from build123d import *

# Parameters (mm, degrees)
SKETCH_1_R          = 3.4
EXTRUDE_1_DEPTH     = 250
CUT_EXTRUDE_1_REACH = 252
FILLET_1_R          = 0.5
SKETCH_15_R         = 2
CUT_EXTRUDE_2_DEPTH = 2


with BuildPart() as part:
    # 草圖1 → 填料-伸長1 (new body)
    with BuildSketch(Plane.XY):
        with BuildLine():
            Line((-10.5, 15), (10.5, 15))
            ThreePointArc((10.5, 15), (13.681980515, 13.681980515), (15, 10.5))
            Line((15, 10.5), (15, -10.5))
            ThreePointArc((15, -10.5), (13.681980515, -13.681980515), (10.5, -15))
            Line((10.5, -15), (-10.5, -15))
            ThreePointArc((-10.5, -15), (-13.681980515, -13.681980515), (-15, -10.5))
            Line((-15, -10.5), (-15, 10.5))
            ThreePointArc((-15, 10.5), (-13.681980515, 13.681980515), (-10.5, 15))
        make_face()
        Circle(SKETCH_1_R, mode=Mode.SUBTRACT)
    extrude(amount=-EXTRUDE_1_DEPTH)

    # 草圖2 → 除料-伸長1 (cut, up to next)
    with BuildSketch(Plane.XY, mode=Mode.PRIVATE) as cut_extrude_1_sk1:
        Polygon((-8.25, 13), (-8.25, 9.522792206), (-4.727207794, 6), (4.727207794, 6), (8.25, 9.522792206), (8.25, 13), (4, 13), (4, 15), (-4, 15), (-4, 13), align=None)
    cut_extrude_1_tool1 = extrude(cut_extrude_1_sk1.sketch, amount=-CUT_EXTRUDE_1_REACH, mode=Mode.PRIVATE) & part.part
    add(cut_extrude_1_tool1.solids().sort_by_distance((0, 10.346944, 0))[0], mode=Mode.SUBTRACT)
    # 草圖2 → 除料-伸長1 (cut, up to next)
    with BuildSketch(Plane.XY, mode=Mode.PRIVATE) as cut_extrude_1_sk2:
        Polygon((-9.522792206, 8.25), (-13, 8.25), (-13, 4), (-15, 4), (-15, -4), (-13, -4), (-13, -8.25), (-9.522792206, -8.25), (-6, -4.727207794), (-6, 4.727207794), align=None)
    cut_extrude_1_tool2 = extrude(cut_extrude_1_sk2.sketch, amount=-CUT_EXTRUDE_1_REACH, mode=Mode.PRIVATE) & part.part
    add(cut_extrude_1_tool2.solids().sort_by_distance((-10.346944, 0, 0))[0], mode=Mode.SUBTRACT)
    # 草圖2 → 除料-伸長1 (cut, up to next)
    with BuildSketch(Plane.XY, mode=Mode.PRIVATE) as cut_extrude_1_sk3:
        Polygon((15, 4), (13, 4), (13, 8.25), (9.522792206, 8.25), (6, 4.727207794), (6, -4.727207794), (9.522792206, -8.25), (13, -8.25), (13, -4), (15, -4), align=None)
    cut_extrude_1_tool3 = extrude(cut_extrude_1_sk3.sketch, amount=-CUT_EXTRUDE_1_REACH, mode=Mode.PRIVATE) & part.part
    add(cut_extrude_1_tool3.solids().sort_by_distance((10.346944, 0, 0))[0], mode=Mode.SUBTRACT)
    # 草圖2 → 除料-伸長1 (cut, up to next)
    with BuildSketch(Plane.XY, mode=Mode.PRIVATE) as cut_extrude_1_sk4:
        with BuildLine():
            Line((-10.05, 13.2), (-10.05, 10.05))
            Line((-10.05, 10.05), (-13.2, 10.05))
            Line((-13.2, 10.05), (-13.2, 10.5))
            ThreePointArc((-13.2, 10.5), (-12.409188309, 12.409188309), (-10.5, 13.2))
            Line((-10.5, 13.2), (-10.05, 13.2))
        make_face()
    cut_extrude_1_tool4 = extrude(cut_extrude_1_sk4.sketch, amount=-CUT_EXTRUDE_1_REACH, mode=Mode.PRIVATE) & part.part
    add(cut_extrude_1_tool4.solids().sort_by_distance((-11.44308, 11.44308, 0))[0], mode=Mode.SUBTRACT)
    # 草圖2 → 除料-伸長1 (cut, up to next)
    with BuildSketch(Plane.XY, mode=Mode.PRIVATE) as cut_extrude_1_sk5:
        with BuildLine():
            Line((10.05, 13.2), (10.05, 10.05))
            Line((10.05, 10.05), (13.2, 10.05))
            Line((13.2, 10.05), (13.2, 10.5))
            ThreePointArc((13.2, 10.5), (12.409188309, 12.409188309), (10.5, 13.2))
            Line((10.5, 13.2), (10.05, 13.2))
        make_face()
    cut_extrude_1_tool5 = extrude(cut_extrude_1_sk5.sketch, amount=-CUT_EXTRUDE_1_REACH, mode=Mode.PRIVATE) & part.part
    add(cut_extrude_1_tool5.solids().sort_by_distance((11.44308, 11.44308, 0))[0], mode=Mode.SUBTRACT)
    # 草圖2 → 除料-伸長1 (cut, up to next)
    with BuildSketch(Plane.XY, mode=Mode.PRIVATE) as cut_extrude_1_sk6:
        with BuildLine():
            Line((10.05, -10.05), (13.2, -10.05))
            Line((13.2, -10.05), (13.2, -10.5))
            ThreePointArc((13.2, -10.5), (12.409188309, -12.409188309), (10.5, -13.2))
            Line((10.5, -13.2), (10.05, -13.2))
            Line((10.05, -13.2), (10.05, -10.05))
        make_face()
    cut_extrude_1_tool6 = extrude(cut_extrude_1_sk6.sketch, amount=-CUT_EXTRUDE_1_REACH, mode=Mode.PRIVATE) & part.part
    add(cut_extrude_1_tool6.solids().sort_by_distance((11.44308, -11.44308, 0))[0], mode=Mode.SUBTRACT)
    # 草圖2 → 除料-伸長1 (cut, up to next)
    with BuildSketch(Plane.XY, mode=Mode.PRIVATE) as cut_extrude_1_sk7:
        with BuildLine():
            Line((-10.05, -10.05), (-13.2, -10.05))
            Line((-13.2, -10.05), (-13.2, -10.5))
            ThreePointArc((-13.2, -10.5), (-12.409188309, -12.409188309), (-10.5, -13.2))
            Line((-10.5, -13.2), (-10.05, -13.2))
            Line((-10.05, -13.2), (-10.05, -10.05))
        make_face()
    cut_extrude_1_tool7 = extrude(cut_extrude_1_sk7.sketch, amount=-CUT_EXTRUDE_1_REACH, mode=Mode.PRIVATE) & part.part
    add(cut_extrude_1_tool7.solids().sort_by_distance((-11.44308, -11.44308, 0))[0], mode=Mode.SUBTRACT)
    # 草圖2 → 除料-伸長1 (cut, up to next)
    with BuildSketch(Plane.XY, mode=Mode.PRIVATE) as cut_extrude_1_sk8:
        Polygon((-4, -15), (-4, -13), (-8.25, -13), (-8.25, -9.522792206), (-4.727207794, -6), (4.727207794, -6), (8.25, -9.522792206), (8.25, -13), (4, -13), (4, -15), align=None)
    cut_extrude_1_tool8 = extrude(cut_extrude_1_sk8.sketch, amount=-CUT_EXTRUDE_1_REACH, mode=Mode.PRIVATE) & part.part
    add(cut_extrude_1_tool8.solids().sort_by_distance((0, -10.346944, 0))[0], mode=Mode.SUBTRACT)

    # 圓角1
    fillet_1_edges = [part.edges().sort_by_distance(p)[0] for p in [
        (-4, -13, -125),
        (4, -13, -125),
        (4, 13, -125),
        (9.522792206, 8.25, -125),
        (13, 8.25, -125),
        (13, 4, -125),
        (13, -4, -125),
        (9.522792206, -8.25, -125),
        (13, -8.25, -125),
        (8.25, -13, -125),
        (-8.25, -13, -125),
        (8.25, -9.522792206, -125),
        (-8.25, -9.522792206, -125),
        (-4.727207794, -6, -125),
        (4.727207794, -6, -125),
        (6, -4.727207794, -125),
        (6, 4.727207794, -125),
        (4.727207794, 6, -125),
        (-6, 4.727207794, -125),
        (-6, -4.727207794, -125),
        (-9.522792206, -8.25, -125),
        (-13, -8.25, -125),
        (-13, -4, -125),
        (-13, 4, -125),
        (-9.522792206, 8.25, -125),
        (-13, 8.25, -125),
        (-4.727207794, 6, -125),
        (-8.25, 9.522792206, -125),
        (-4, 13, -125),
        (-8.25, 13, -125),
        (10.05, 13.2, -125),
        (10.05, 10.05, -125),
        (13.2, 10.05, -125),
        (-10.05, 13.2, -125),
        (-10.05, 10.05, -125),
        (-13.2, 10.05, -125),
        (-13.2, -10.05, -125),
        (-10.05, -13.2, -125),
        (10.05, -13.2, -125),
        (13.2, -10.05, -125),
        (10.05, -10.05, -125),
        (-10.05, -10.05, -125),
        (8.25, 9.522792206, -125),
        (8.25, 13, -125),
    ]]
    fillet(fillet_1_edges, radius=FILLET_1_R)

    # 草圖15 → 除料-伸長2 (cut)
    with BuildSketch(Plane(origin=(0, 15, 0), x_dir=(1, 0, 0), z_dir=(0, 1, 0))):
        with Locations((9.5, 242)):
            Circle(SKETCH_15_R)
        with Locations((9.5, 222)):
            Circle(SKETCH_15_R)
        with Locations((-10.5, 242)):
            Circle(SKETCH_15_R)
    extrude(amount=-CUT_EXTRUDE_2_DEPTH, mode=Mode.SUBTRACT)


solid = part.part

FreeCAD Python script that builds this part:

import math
import FreeCAD as App
import Part
import Sketcher
from FreeCAD import Vector


def edges_at(feature, points):
    """Names of the edges that pass closest to the given points."""
    edges = feature.Shape.Edges
    near = lambda p: min(range(len(edges)), key=lambda i: edges[i].distToShape(Part.Vertex(*p))[0])
    return sorted({f"Edge{near(p) + 1}" for p in points})

doc = App.newDocument("Part")
body = doc.addObject("PartDesign::Body", "Body")

sketch1 = body.newObject("Sketcher::SketchObject", "Sketch")
sketch1.AttachmentSupport = (doc.getObject("XY_Plane"), [""])
sketch1.MapMode = "FlatFace"
sketch1.addGeometry(Part.LineSegment(Vector(10.5, 15, 0), Vector(-10.5, 15, 0)), False)
sketch1.addGeometry(Part.ArcOfCircle(Part.Circle(Vector(-10.5, 10.5, 0), Vector(0, 0, 1), 4.5), math.radians(90), math.radians(180)), False)
sketch1.addGeometry(Part.LineSegment(Vector(-15, 10.5, 0), Vector(-15, -10.5, 0)), False)
sketch1.addGeometry(Part.ArcOfCircle(Part.Circle(Vector(-10.5, -10.5, 0), Vector(0, 0, 1), 4.5), math.radians(-180), math.radians(-90)), False)
sketch1.addGeometry(Part.LineSegment(Vector(-10.5, -15, 0), Vector(10.5, -15, 0)), False)
sketch1.addGeometry(Part.ArcOfCircle(Part.Circle(Vector(10.5, -10.5, 0), Vector(0, 0, 1), 4.5), math.radians(-90), math.radians(0)), False)
sketch1.addGeometry(Part.LineSegment(Vector(15, -10.5, 0), Vector(15, 10.5, 0)), False)
sketch1.addGeometry(Part.ArcOfCircle(Part.Circle(Vector(10.5, 10.5, 0), Vector(0, 0, 1), 4.5), math.radians(0), math.radians(90)), False)
sketch1.addGeometry(Part.Circle(Vector(0, 0, 0), Vector(0, 0, 1), 3.4), False)
sketch1.addConstraint(Sketcher.Constraint("Tangent", 0, 2, 1, 1))
sketch1.addConstraint(Sketcher.Constraint("Tangent", 1, 2, 2, 1))
sketch1.addConstraint(Sketcher.Constraint("Tangent", 2, 2, 3, 1))
sketch1.addConstraint(Sketcher.Constraint("Tangent", 3, 2, 4, 1))
sketch1.addConstraint(Sketcher.Constraint("Tangent", 4, 2, 5, 1))
sketch1.addConstraint(Sketcher.Constraint("Tangent", 5, 2, 6, 1))
sketch1.addConstraint(Sketcher.Constraint("Tangent", 6, 2, 7, 1))
sketch1.addConstraint(Sketcher.Constraint("Tangent", 7, 2, 0, 1))
sketch1.addConstraint(Sketcher.Constraint("Horizontal", 0))
sketch1.addConstraint(Sketcher.Constraint("Vertical", 2))
sketch1.addConstraint(Sketcher.Constraint("Horizontal", 4))
sketch1.addConstraint(Sketcher.Constraint("Vertical", 6))
sketch1.addConstraint(Sketcher.Constraint("Coincident", 8, 3, -1, 1))
sketch1.addConstraint(Sketcher.Constraint("Equal", 1, 3))
sketch1.addConstraint(Sketcher.Constraint("Equal", 3, 5))
sketch1.addConstraint(Sketcher.Constraint("Equal", 5, 7))
sketch1.addConstraint(Sketcher.Constraint("Symmetric", 1, 3, 5, 3, -1, 1))
sketch1.addConstraint(Sketcher.Constraint("Equal", 4, 2))
sketch1.addConstraint(Sketcher.Constraint("Diameter", 8, 6.8))
sketch1.addConstraint(Sketcher.Constraint("Radius", 1, 4.5))
sketch1.addConstraint(Sketcher.Constraint("DistanceX", 0, 2, 0, 1, 21.0))
pad1 = body.newObject("PartDesign::Pad", "Pad")
pad1.Profile = sketch1
pad1.Length = 250
pad1.Reversed = True

sketch2 = body.newObject("Sketcher::SketchObject", "Sketch001")
sketch2.AttachmentSupport = (doc.getObject("XY_Plane"), [""])
sketch2.MapMode = "FlatFace"
sketch2.addGeometry(Part.LineSegment(Vector(-8.2, 13, 0), Vector(-8.2, 9.5, 0)), False)
sketch2.addGeometry(Part.LineSegment(Vector(-8.2, 9.5, 0), Vector(-4.7, 6, 0)), False)
sketch2.addGeometry(Part.LineSegment(Vector(-4.7, 6, 0), Vector(4.7, 6, 0)), False)
sketch2.addGeometry(Part.LineSegment(Vector(4.7, 6, 0), Vector(8.2, 9.5, 0)), False)
sketch2.addGeometry(Part.LineSegment(Vector(8.2, 9.5, 0), Vector(8.2, 13, 0)), False)
sketch2.addGeometry(Part.LineSegment(Vector(8.2, 13, 0), Vector(4, 13, 0)), False)
sketch2.addGeometry(Part.LineSegment(Vector(4, 13, 0), Vector(4, 15, 0)), False)
sketch2.addGeometry(Part.LineSegment(Vector(4, 15, 0), Vector(-4, 15, 0)), False)
sketch2.addGeometry(Part.LineSegment(Vector(-4, 15, 0), Vector(-4, 13, 0)), False)
sketch2.addGeometry(Part.LineSegment(Vector(-4, 13, 0), Vector(-8.2, 13, 0)), False)
sketch2.addConstraint(Sketcher.Constraint("Coincident", 0, 2, 1, 1))
sketch2.addConstraint(Sketcher.Constraint("Coincident", 1, 2, 2, 1))
sketch2.addConstraint(Sketcher.Constraint("Coincident", 2, 2, 3, 1))
sketch2.addConstraint(Sketcher.Constraint("Coincident", 3, 2, 4, 1))
sketch2.addConstraint(Sketcher.Constraint("Coincident", 4, 2, 5, 1))
sketch2.addConstraint(Sketcher.Constraint("Coincident", 5, 2, 6, 1))
sketch2.addConstraint(Sketcher.Constraint("Coincident", 6, 2, 7, 1))
sketch2.addConstraint(Sketcher.Constraint("Coincident", 7, 2, 8, 1))
sketch2.addConstraint(Sketcher.Constraint("Coincident", 8, 2, 9, 1))
sketch2.addConstraint(Sketcher.Constraint("Coincident", 9, 2, 0, 1))
sketch2.addConstraint(Sketcher.Constraint("Vertical", 0))
sketch2.addConstraint(Sketcher.Constraint("Horizontal", 2))
sketch2.addConstraint(Sketcher.Constraint("Vertical", 4))
sketch2.addConstraint(Sketcher.Constraint("Horizontal", 5))
sketch2.addConstraint(Sketcher.Constraint("Vertical", 6))
sketch2.addConstraint(Sketcher.Constraint("Horizontal", 7))
sketch2.addConstraint(Sketcher.Constraint("Vertical", 8))
sketch2.addConstraint(Sketcher.Constraint("Horizontal", 9))
sketch2.addConstraint(Sketcher.Constraint("Symmetric", 0, 2, 3, 2, -2))
sketch2.addConstraint(Sketcher.Constraint("Symmetric", 5, 2, 8, 2, -2))
sketch2.addConstraint(Sketcher.Constraint("Perpendicular", 1, 3))
sketch2.addConstraint(Sketcher.Constraint("Equal", 1, 3))
sketch2.addConstraint(Sketcher.Constraint("DistanceX", 7, 2, 7, 1, 8.0))
sketch2.addConstraint(Sketcher.Constraint("DistanceY", 6, 1, 6, 2, 2.0))
sketch2.addConstraint(Sketcher.Constraint("DistanceY", -1, 1, 1, 2, 6.0))
sketch2.addConstraint(Sketcher.Constraint("DistanceY", -1, 1, 4, 2, 13.0))
sketch2.addConstraint(Sketcher.Constraint("DistanceX", 5, 2, 5, 1, 4.25))
sketch2.addConstraint(Sketcher.Constraint("Distance", 1, 4.981981))
pocket1 = body.newObject("PartDesign::Pocket", "Pocket")
pocket1.Profile = sketch2
pocket1.Type = "UpToFirst"

sketch3 = body.newObject("Sketcher::SketchObject", "Sketch002")
sketch3.AttachmentSupport = (doc.getObject("XY_Plane"), [""])
sketch3.MapMode = "FlatFace"
sketch3.addGeometry(Part.LineSegment(Vector(-9.5, 8.2, 0), Vector(-13, 8.2, 0)), False)
sketch3.addGeometry(Part.LineSegment(Vector(-13, 8.2, 0), Vector(-13, 4, 0)), False)
sketch3.addGeometry(Part.LineSegment(Vector(-13, 4, 0), Vector(-15, 4, 0)), False)
sketch3.addGeometry(Part.LineSegment(Vector(-15, 4, 0), Vector(-15, -4, 0)), False)
sketch3.addGeometry(Part.LineSegment(Vector(-15, -4, 0), Vector(-13, -4, 0)), False)
sketch3.addGeometry(Part.LineSegment(Vector(-13, -4, 0), Vector(-13, -8.2, 0)), False)
sketch3.addGeometry(Part.LineSegment(Vector(-13, -8.2, 0), Vector(-9.5, -8.2, 0)), False)
sketch3.addGeometry(Part.LineSegment(Vector(-9.5, -8.2, 0), Vector(-6, -4.7, 0)), False)
sketch3.addGeometry(Part.LineSegment(Vector(-6, -4.7, 0), Vector(-6, 4.7, 0)), False)
sketch3.addGeometry(Part.LineSegment(Vector(-6, 4.7, 0), Vector(-9.5, 8.2, 0)), False)
sketch3.addConstraint(Sketcher.Constraint("Coincident", 0, 2, 1, 1))
sketch3.addConstraint(Sketcher.Constraint("Coincident", 1, 2, 2, 1))
sketch3.addConstraint(Sketcher.Constraint("Coincident", 2, 2, 3, 1))
sketch3.addConstraint(Sketcher.Constraint("Coincident", 3, 2, 4, 1))
sketch3.addConstraint(Sketcher.Constraint("Coincident", 4, 2, 5, 1))
sketch3.addConstraint(Sketcher.Constraint("Coincident", 5, 2, 6, 1))
sketch3.addConstraint(Sketcher.Constraint("Coincident", 6, 2, 7, 1))
sketch3.addConstraint(Sketcher.Constraint("Coincident", 7, 2, 8, 1))
sketch3.addConstraint(Sketcher.Constraint("Coincident", 8, 2, 9, 1))
sketch3.addConstraint(Sketcher.Constraint("Coincident", 9, 2, 0, 1))
sketch3.addConstraint(Sketcher.Constraint("Horizontal", 0))
sketch3.addConstraint(Sketcher.Constraint("Vertical", 1))
sketch3.addConstraint(Sketcher.Constraint("Horizontal", 2))
sketch3.addConstraint(Sketcher.Constraint("Vertical", 3))
sketch3.addConstraint(Sketcher.Constraint("Horizontal", 4))
sketch3.addConstraint(Sketcher.Constraint("Vertical", 5))
sketch3.addConstraint(Sketcher.Constraint("Horizontal", 6))
sketch3.addConstraint(Sketcher.Constraint("Vertical", 8))
sketch3.addConstraint(Sketcher.Constraint("Symmetric", 1, 2, 4, 2, -1))
sketch3.addConstraint(Sketcher.Constraint("Symmetric", 6, 2, 9, 2, -1))
sketch3.addConstraint(Sketcher.Constraint("Perpendicular", 7, 9))
sketch3.addConstraint(Sketcher.Constraint("Equal", 7, 9))
sketch3.addConstraint(Sketcher.Constraint("DistanceX", 2, 2, 2, 1, 2.0))
sketch3.addConstraint(Sketcher.Constraint("DistanceY", 3, 2, 3, 1, 8.0))
sketch3.addConstraint(Sketcher.Constraint("DistanceX", 0, 2, -1, 1, 13.0))
sketch3.addConstraint(Sketcher.Constraint("DistanceX", 7, 2, -1, 1, 6.0))
sketch3.addConstraint(Sketcher.Constraint("DistanceY", 1, 2, 1, 1, 4.25))
sketch3.addConstraint(Sketcher.Constraint("Distance", 7, 4.981981))
pocket2 = body.newObject("PartDesign::Pocket", "Pocket001")
pocket2.Profile = sketch3
pocket2.Type = "UpToFirst"

sketch4 = body.newObject("Sketcher::SketchObject", "Sketch003")
sketch4.AttachmentSupport = (doc.getObject("XY_Plane"), [""])
sketch4.MapMode = "FlatFace"
sketch4.addGeometry(Part.LineSegment(Vector(15, 4, 0), Vector(13, 4, 0)), False)
sketch4.addGeometry(Part.LineSegment(Vector(13, 4, 0), Vector(13, 8.2, 0)), False)
sketch4.addGeometry(Part.LineSegment(Vector(13, 8.2, 0), Vector(9.5, 8.2, 0)), False)
sketch4.addGeometry(Part.LineSegment(Vector(9.5, 8.2, 0), Vector(6, 4.7, 0)), False)
sketch4.addGeometry(Part.LineSegment(Vector(6, 4.7, 0), Vector(6, -4.7, 0)), False)
sketch4.addGeometry(Part.LineSegment(Vector(6, -4.7, 0), Vector(9.5, -8.2, 0)), False)
sketch4.addGeometry(Part.LineSegment(Vector(9.5, -8.2, 0), Vector(13, -8.2, 0)), False)
sketch4.addGeometry(Part.LineSegment(Vector(13, -8.2, 0), Vector(13, -4, 0)), False)
sketch4.addGeometry(Part.LineSegment(Vector(13, -4, 0), Vector(15, -4, 0)), False)
sketch4.addGeometry(Part.LineSegment(Vector(15, -4, 0), Vector(15, 4, 0)), False)
sketch4.addConstraint(Sketcher.Constraint("Coincident", 0, 2, 1, 1))
sketch4.addConstraint(Sketcher.Constraint("Coincident", 1, 2, 2, 1))
sketch4.addConstraint(Sketcher.Constraint("Coincident", 2, 2, 3, 1))
sketch4.addConstraint(Sketcher.Constraint("Coincident", 3, 2, 4, 1))
sketch4.addConstraint(Sketcher.Constraint("Coincident", 4, 2, 5, 1))
sketch4.addConstraint(Sketcher.Constraint("Coincident", 5, 2, 6, 1))
sketch4.addConstraint(Sketcher.Constraint("Coincident", 6, 2, 7, 1))
sketch4.addConstraint(Sketcher.Constraint("Coincident", 7, 2, 8, 1))
sketch4.addConstraint(Sketcher.Constraint("Coincident", 8, 2, 9, 1))
sketch4.addConstraint(Sketcher.Constraint("Coincident", 9, 2, 0, 1))
sketch4.addConstraint(Sketcher.Constraint("Horizontal", 0))
sketch4.addConstraint(Sketcher.Constraint("Vertical", 1))
sketch4.addConstraint(Sketcher.Constraint("Horizontal", 2))
sketch4.addConstraint(Sketcher.Constraint("Vertical", 4))
sketch4.addConstraint(Sketcher.Constraint("Horizontal", 6))
sketch4.addConstraint(Sketcher.Constraint("Vertical", 7))
sketch4.addConstraint(Sketcher.Constraint("Horizontal", 8))
sketch4.addConstraint(Sketcher.Constraint("Vertical", 9))
sketch4.addConstraint(Sketcher.Constraint("Symmetric", 2, 2, 5, 2, -1))
sketch4.addConstraint(Sketcher.Constraint("Symmetric", 0, 2, 7, 2, -1))
sketch4.addConstraint(Sketcher.Constraint("Perpendicular", 3, 5))
sketch4.addConstraint(Sketcher.Constraint("Equal", 3, 5))
sketch4.addConstraint(Sketcher.Constraint("DistanceX", 0, 2, 0, 1, 2.0))
sketch4.addConstraint(Sketcher.Constraint("DistanceY", 9, 1, 9, 2, 8.0))
sketch4.addConstraint(Sketcher.Constraint("DistanceX", -1, 1, 0, 2, 13.0))
sketch4.addConstraint(Sketcher.Constraint("DistanceX", -1, 1, 3, 2, 6.0))
sketch4.addConstraint(Sketcher.Constraint("DistanceY", 1, 1, 1, 2, 4.25))
sketch4.addConstraint(Sketcher.Constraint("Distance", 3, 4.981981))
pocket3 = body.newObject("PartDesign::Pocket", "Pocket002")
pocket3.Profile = sketch4
pocket3.Type = "UpToFirst"

sketch5 = body.newObject("Sketcher::SketchObject", "Sketch004")
sketch5.AttachmentSupport = (doc.getObject("XY_Plane"), [""])
sketch5.MapMode = "FlatFace"
sketch5.addGeometry(Part.LineSegment(Vector(-10.05, 10.05, 0), Vector(-10.05, 13.2, 0)), False)
sketch5.addGeometry(Part.LineSegment(Vector(-10.05, 13.2, 0), Vector(-10.5, 13.2, 0)), False)
sketch5.addGeometry(Part.ArcOfCircle(Part.Circle(Vector(-10.5, 10.5, 0), Vector(0, 0, 1), 2.7), math.radians(90), math.radians(180)), False)
sketch5.addGeometry(Part.LineSegment(Vector(-13.2, 10.5, 0), Vector(-13.2, 10.05, 0)), False)
sketch5.addGeometry(Part.LineSegment(Vector(-13.2, 10.05, 0), Vector(-10.05, 10.05, 0)), False)
sketch5.addConstraint(Sketcher.Constraint("Coincident", 0, 2, 1, 1))
sketch5.addConstraint(Sketcher.Constraint("Tangent", 1, 2, 2, 1))
sketch5.addConstraint(Sketcher.Constraint("Tangent", 2, 2, 3, 1))
sketch5.addConstraint(Sketcher.Constraint("Coincident", 3, 2, 4, 1))
sketch5.addConstraint(Sketcher.Constraint("Coincident", 4, 2, 0, 1))
sketch5.addConstraint(Sketcher.Constraint("Vertical", 0))
sketch5.addConstraint(Sketcher.Constraint("Horizontal", 1))
sketch5.addConstraint(Sketcher.Constraint("Vertical", 3))
sketch5.addConstraint(Sketcher.Constraint("Horizontal", 4))
sketch5.addConstraint(Sketcher.Constraint("Equal", 4, 0))
sketch5.addConstraint(Sketcher.Constraint("Radius", 2, 2.7))
sketch5.addConstraint(Sketcher.Constraint("DistanceX", 1, 2, 1, 1, 0.45))
sketch5.addConstraint(Sketcher.Constraint("DistanceX", 2, 3, -1, 1, 10.5))
sketch5.addConstraint(Sketcher.Constraint("DistanceY", -1, 1, 2, 3, 10.5))
pocket4 = body.newObject("PartDesign::Pocket", "Pocket003")
pocket4.Profile = sketch5
pocket4.Type = "UpToFirst"

sketch6 = body.newObject("Sketcher::SketchObject", "Sketch005")
sketch6.AttachmentSupport = (doc.getObject("XY_Plane"), [""])
sketch6.MapMode = "FlatFace"
sketch6.addGeometry(Part.LineSegment(Vector(10.05, 13.2, 0), Vector(10.05, 10.05, 0)), False)
sketch6.addGeometry(Part.LineSegment(Vector(10.05, 10.05, 0), Vector(13.2, 10.05, 0)), False)
sketch6.addGeometry(Part.LineSegment(Vector(13.2, 10.05, 0), Vector(13.2, 10.5, 0)), False)
sketch6.addGeometry(Part.ArcOfCircle(Part.Circle(Vector(10.5, 10.5, 0), Vector(0, 0, 1), 2.7), math.radians(0), math.radians(90)), False)
sketch6.addGeometry(Part.LineSegment(Vector(10.5, 13.2, 0), Vector(10.05, 13.2, 0)), False)
sketch6.addConstraint(Sketcher.Constraint("Coincident", 0, 2, 1, 1))
sketch6.addConstraint(Sketcher.Constraint("Coincident", 1, 2, 2, 1))
sketch6.addConstraint(Sketcher.Constraint("Tangent", 2, 2, 3, 1))
sketch6.addConstraint(Sketcher.Constraint("Tangent", 3, 2, 4, 1))
sketch6.addConstraint(Sketcher.Constraint("Coincident", 4, 2, 0, 1))
sketch6.addConstraint(Sketcher.Constraint("Vertical", 0))
sketch6.addConstraint(Sketcher.Constraint("Horizontal", 1))
sketch6.addConstraint(Sketcher.Constraint("Vertical", 2))
sketch6.addConstraint(Sketcher.Constraint("Horizontal", 4))
sketch6.addConstraint(Sketcher.Constraint("Equal", 1, 0))
sketch6.addConstraint(Sketcher.Constraint("Radius", 3, 2.7))
sketch6.addConstraint(Sketcher.Constraint("DistanceX", 1, 1, 1, 2, 3.15))
sketch6.addConstraint(Sketcher.Constraint("DistanceX", -1, 1, 3, 3, 10.5))
sketch6.addConstraint(Sketcher.Constraint("DistanceY", -1, 1, 3, 3, 10.5))
pocket5 = body.newObject("PartDesign::Pocket", "Pocket004")
pocket5.Profile = sketch6
pocket5.Type = "UpToFirst"

sketch7 = body.newObject("Sketcher::SketchObject", "Sketch006")
sketch7.AttachmentSupport = (doc.getObject("XY_Plane"), [""])
sketch7.MapMode = "FlatFace"
sketch7.addGeometry(Part.LineSegment(Vector(13.2, -10.05, 0), Vector(10.05, -10.05, 0)), False)
sketch7.addGeometry(Part.LineSegment(Vector(10.05, -10.05, 0), Vector(10.05, -13.2, 0)), False)
sketch7.addGeometry(Part.LineSegment(Vector(10.05, -13.2, 0), Vector(10.5, -13.2, 0)), False)
sketch7.addGeometry(Part.ArcOfCircle(Part.Circle(Vector(10.5, -10.5, 0), Vector(0, 0, 1), 2.7), math.radians(-90), math.radians(0)), False)
sketch7.addGeometry(Part.LineSegment(Vector(13.2, -10.5, 0), Vector(13.2, -10.05, 0)), False)
sketch7.addConstraint(Sketcher.Constraint("Coincident", 0, 2, 1, 1))
sketch7.addConstraint(Sketcher.Constraint("Coincident", 1, 2, 2, 1))
sketch7.addConstraint(Sketcher.Constraint("Tangent", 2, 2, 3, 1))
sketch7.addConstraint(Sketcher.Constraint("Tangent", 3, 2, 4, 1))
sketch7.addConstraint(Sketcher.Constraint("Coincident", 4, 2, 0, 1))
sketch7.addConstraint(Sketcher.Constraint("Horizontal", 0))
sketch7.addConstraint(Sketcher.Constraint("Vertical", 1))
sketch7.addConstraint(Sketcher.Constraint("Horizontal", 2))
sketch7.addConstraint(Sketcher.Constraint("Vertical", 4))
sketch7.addConstraint(Sketcher.Constraint("Equal", 0, 1))
sketch7.addConstraint(Sketcher.Constraint("Radius", 3, 2.7))
sketch7.addConstraint(Sketcher.Constraint("DistanceX", 0, 2, 0, 1, 3.15))
sketch7.addConstraint(Sketcher.Constraint("DistanceX", -1, 1, 3, 3, 10.5))
sketch7.addConstraint(Sketcher.Constraint("DistanceY", 3, 3, -1, 1, 10.5))
pocket6 = body.newObject("PartDesign::Pocket", "Pocket005")
pocket6.Profile = sketch7
pocket6.Type = "UpToFirst"

sketch8 = body.newObject("Sketcher::SketchObject", "Sketch007")
sketch8.AttachmentSupport = (doc.getObject("XY_Plane"), [""])
sketch8.MapMode = "FlatFace"
sketch8.addGeometry(Part.LineSegment(Vector(-10.05, -10.05, 0), Vector(-13.2, -10.05, 0)), False)
sketch8.addGeometry(Part.LineSegment(Vector(-13.2, -10.05, 0), Vector(-13.2, -10.5, 0)), False)
sketch8.addGeometry(Part.ArcOfCircle(Part.Circle(Vector(-10.5, -10.5, 0), Vector(0, 0, 1), 2.7), math.radians(-180), math.radians(-90)), False)
sketch8.addGeometry(Part.LineSegment(Vector(-10.5, -13.2, 0), Vector(-10.05, -13.2, 0)), False)
sketch8.addGeometry(Part.LineSegment(Vector(-10.05, -13.2, 0), Vector(-10.05, -10.05, 0)), False)
sketch8.addConstraint(Sketcher.Constraint("Coincident", 0, 2, 1, 1))
sketch8.addConstraint(Sketcher.Constraint("Tangent", 1, 2, 2, 1))
sketch8.addConstraint(Sketcher.Constraint("Tangent", 2, 2, 3, 1))
sketch8.addConstraint(Sketcher.Constraint("Coincident", 3, 2, 4, 1))
sketch8.addConstraint(Sketcher.Constraint("Coincident", 4, 2, 0, 1))
sketch8.addConstraint(Sketcher.Constraint("Horizontal", 0))
sketch8.addConstraint(Sketcher.Constraint("Vertical", 1))
sketch8.addConstraint(Sketcher.Constraint("Horizontal", 3))
sketch8.addConstraint(Sketcher.Constraint("Vertical", 4))
sketch8.addConstraint(Sketcher.Constraint("Equal", 3, 1))
sketch8.addConstraint(Sketcher.Constraint("Radius", 2, 2.7))
sketch8.addConstraint(Sketcher.Constraint("DistanceX", 0, 2, 0, 1, 3.15))
sketch8.addConstraint(Sketcher.Constraint("DistanceX", 2, 3, -1, 1, 10.5))
sketch8.addConstraint(Sketcher.Constraint("DistanceY", 2, 3, -1, 1, 10.5))
pocket7 = body.newObject("PartDesign::Pocket", "Pocket006")
pocket7.Profile = sketch8
pocket7.Type = "UpToFirst"

sketch9 = body.newObject("Sketcher::SketchObject", "Sketch008")
sketch9.AttachmentSupport = (doc.getObject("XY_Plane"), [""])
sketch9.MapMode = "FlatFace"
sketch9.addGeometry(Part.LineSegment(Vector(-4, -13, 0), Vector(-4, -15, 0)), False)
sketch9.addGeometry(Part.LineSegment(Vector(-4, -15, 0), Vector(4, -15, 0)), False)
sketch9.addGeometry(Part.LineSegment(Vector(4, -15, 0), Vector(4, -13, 0)), False)
sketch9.addGeometry(Part.LineSegment(Vector(4, -13, 0), Vector(8.2, -13, 0)), False)
sketch9.addGeometry(Part.LineSegment(Vector(8.2, -13, 0), Vector(8.2, -9.5, 0)), False)
sketch9.addGeometry(Part.LineSegment(Vector(8.2, -9.5, 0), Vector(4.7, -6, 0)), False)
sketch9.addGeometry(Part.LineSegment(Vector(4.7, -6, 0), Vector(-4.7, -6, 0)), False)
sketch9.addGeometry(Part.LineSegment(Vector(-4.7, -6, 0), Vector(-8.2, -9.5, 0)), False)
sketch9.addGeometry(Part.LineSegment(Vector(-8.2, -9.5, 0), Vector(-8.2, -13, 0)), False)
sketch9.addGeometry(Part.LineSegment(Vector(-8.2, -13, 0), Vector(-4, -13, 0)), False)
sketch9.addConstraint(Sketcher.Constraint("Coincident", 0, 2, 1, 1))
sketch9.addConstraint(Sketcher.Constraint("Coincident", 1, 2, 2, 1))
sketch9.addConstraint(Sketcher.Constraint("Coincident", 2, 2, 3, 1))
sketch9.addConstraint(Sketcher.Constraint("Coincident", 3, 2, 4, 1))
sketch9.addConstraint(Sketcher.Constraint("Coincident", 4, 2, 5, 1))
sketch9.addConstraint(Sketcher.Constraint("Coincident", 5, 2, 6, 1))
sketch9.addConstraint(Sketcher.Constraint("Coincident", 6, 2, 7, 1))
sketch9.addConstraint(Sketcher.Constraint("Coincident", 7, 2, 8, 1))
sketch9.addConstraint(Sketcher.Constraint("Coincident", 8, 2, 9, 1))
sketch9.addConstraint(Sketcher.Constraint("Coincident", 9, 2, 0, 1))
sketch9.addConstraint(Sketcher.Constraint("Vertical", 0))
sketch9.addConstraint(Sketcher.Constraint("Horizontal", 1))
sketch9.addConstraint(Sketcher.Constraint("Vertical", 2))
sketch9.addConstraint(Sketcher.Constraint("Horizontal", 3))
sketch9.addConstraint(Sketcher.Constraint("Vertical", 4))
sketch9.addConstraint(Sketcher.Constraint("Horizontal", 6))
sketch9.addConstraint(Sketcher.Constraint("Vertical", 8))
sketch9.addConstraint(Sketcher.Constraint("Horizontal", 9))
sketch9.addConstraint(Sketcher.Constraint("Symmetric", 4, 2, 7, 2, -2))
sketch9.addConstraint(Sketcher.Constraint("Symmetric", 2, 2, 9, 2, -2))
sketch9.addConstraint(Sketcher.Constraint("Perpendicular", 5, 7))
sketch9.addConstraint(Sketcher.Constraint("Equal", 5, 7))
sketch9.addConstraint(Sketcher.Constraint("DistanceX", 1, 1, 1, 2, 8.0))
sketch9.addConstraint(Sketcher.Constraint("DistanceY", 0, 2, 0, 1, 2.0))
sketch9.addConstraint(Sketcher.Constraint("DistanceY", 0, 2, -1, 1, 15.0))
sketch9.addConstraint(Sketcher.Constraint("DistanceY", 5, 2, -1, 1, 6.0))
sketch9.addConstraint(Sketcher.Constraint("DistanceX", 3, 1, 3, 2, 4.25))
sketch9.addConstraint(Sketcher.Constraint("Distance", 5, 4.981981))
pocket8 = body.newObject("PartDesign::Pocket", "Pocket007")
pocket8.Profile = sketch9
pocket8.Type = "UpToFirst"
doc.recompute()

fillet = body.newObject("PartDesign::Fillet", "Fillet")
fillet.Base = (pocket8, edges_at(pocket8, [
    (-4, -13, -125),
    (4, -13, -125),
    (4, 13, -125),
    (9.523, 8.25, -125),
    (13, 8.25, -125),
    (13, 4, -125),
    (13, -4, -125),
    (9.523, -8.25, -125),
    (13, -8.25, -125),
    (8.25, -13, -125),
    (-8.25, -13, -125),
    (8.25, -9.523, -125),
    (-8.25, -9.523, -125),
    (-4.727, -6, -125),
    (4.727, -6, -125),
    (6, -4.727, -125),
    (6, 4.727, -125),
    (4.727, 6, -125),
    (-6, 4.727, -125),
    (-6, -4.727, -125),
    (-9.523, -8.25, -125),
    (-13, -8.25, -125),
    (-13, -4, -125),
    (-13, 4, -125),
    (-9.523, 8.25, -125),
    (-13, 8.25, -125),
    (-4.727, 6, -125),
    (-8.25, 9.523, -125),
    (-4, 13, -125),
    (-8.25, 13, -125),
    (10.05, 13.2, -125),
    (10.05, 10.05, -125),
    (13.2, 10.05, -125),
    (-10.05, 13.2, -125),
    (-10.05, 10.05, -125),
    (-13.2, 10.05, -125),
    (-13.2, -10.05, -125),
    (-10.05, -13.2, -125),
    (10.05, -13.2, -125),
    (13.2, -10.05, -125),
    (10.05, -10.05, -125),
    (-10.05, -10.05, -125),
    (8.25, 9.523, -125),
    (8.25, 13, -125),
]))
fillet.Radius = 0.5

sketch10 = body.newObject("Sketcher::SketchObject", "Sketch009")
sketch10.AttachmentSupport = (doc.getObject("XZ_Plane"), [""])
sketch10.MapMode = "FlatFace"
sketch10.AttachmentOffset = App.Placement(Vector(0, 0, -15), App.Rotation())
sketch10.addGeometry(Part.Circle(Vector(9.5, -242, 0), Vector(0, 0, 1), 2), False)
sketch10.addGeometry(Part.Circle(Vector(9.5, -222, 0), Vector(0, 0, 1), 2), False)
sketch10.addGeometry(Part.Circle(Vector(-10.5, -242, 0), Vector(0, 0, 1), 2), False)
sketch10.addConstraint(Sketcher.Constraint("Equal", 0, 1))
sketch10.addConstraint(Sketcher.Constraint("Equal", 1, 2))
sketch10.addConstraint(Sketcher.Constraint("Horizontal", 0, 3, 2, 3))
sketch10.addConstraint(Sketcher.Constraint("Vertical", 0, 3, 1, 3))
sketch10.addConstraint(Sketcher.Constraint("Diameter", 0, 4.0))
sketch10.addConstraint(Sketcher.Constraint("DistanceY", 0, 3, -1, 1, 242.0))
sketch10.addConstraint(Sketcher.Constraint("DistanceY", 1, 3, -1, 1, 222.0))
sketch10.addConstraint(Sketcher.Constraint("DistanceX", 2, 3, 0, 3, 20.0))
sketch10.addConstraint(Sketcher.Constraint("DistanceX", -1, 1, 0, 3, 9.5))
pocket9 = body.newObject("PartDesign::Pocket", "Pocket008")
pocket9.Profile = sketch10
pocket9.Length = 2
pocket9.Reversed = True

doc.recompute()
